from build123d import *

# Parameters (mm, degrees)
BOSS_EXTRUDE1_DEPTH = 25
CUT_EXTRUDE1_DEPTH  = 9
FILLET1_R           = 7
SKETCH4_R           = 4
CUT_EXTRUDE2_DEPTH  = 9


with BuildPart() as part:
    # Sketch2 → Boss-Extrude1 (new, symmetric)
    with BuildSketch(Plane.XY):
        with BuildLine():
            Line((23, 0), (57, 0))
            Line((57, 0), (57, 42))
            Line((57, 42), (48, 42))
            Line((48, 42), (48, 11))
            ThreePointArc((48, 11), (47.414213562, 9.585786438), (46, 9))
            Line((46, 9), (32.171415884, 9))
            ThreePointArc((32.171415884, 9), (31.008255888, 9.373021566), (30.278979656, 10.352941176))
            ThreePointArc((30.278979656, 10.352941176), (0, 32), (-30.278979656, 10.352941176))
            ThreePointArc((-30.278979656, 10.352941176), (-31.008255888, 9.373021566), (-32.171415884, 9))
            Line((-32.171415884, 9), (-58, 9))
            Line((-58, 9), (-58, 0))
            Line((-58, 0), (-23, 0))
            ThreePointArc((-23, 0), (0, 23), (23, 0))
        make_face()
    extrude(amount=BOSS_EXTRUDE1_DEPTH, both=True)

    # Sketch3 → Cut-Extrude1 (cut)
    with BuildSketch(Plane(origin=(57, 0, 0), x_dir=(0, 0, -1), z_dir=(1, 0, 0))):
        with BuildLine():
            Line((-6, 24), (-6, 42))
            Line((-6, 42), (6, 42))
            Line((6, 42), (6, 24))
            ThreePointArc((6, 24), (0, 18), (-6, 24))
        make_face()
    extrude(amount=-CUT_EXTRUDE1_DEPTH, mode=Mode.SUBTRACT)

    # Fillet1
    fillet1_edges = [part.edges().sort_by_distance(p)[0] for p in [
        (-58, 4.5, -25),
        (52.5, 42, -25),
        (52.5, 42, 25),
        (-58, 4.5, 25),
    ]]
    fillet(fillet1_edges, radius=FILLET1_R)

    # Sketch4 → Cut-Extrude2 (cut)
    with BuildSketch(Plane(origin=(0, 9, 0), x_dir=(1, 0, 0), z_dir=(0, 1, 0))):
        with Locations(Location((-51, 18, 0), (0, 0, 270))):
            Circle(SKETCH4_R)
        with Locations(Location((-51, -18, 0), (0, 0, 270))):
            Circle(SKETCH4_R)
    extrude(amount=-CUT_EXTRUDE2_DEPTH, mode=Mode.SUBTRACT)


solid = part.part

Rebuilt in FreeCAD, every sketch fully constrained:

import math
import FreeCAD as App
import Part
import Sketcher
Q = App.Units.Quantity


def edges_at(feature, points):
    """Names of the edges that pass closest to the given points."""
    edges = feature.Shape.Edges
    near = lambda p: min(range(len(edges)), key=lambda i: edges[i].distToShape(Part.Vertex(*p))[0])
    return sorted({f"Edge{near(p) + 1}" for p in points})

doc = App.newDocument("Part")
body = doc.addObject("PartDesign::Body", "Body")

sketch1 = body.newObject("Sketcher::SketchObject", "Sketch")
sketch1.AttachmentSupport = (doc.getObject("XY_Plane"), [""])
sketch1.MapMode = "FlatFace"
sketch1.addGeometry([
    Part.LineSegment(App.Vector(23, 0, 0), App.Vector(57, 0, 0)),
    Part.LineSegment(App.Vector(57, 0, 0), App.Vector(57, 42, 0)),
    Part.LineSegment(App.Vector(57, 42, 0), App.Vector(48, 42, 0)),
    Part.LineSegment(App.Vector(48, 42, 0), App.Vector(48, 11, 0)),
    Part.ArcOfCircle(Part.Circle(App.Vector(46, 11, 0), App.Vector(0, 0, 1), 2), math.radians(-90), math.radians(0)),
    Part.LineSegment(App.Vector(46, 9, 0), App.Vector(32.2, 9, 0)),
    Part.ArcOfCircle(Part.Circle(App.Vector(32.2, 11, 0), App.Vector(0, 0, 1), 2), math.radians(-161), math.radians(-90)),
    Part.ArcOfCircle(Part.Circle(App.Vector(0, 0, 0), App.Vector(0, 0, 1), 32), math.radians(19), math.radians(161)),
    Part.ArcOfCircle(Part.Circle(App.Vector(-32.2, 11, 0), App.Vector(0, 0, 1), 2), math.radians(-90), math.radians(-19)),
    Part.LineSegment(App.Vector(-32.2, 9, 0), App.Vector(-58, 9, 0)),
    Part.LineSegment(App.Vector(-58, 9, 0), App.Vector(-58, 0, 0)),
    Part.LineSegment(App.Vector(-58, 0, 0), App.Vector(-23, 0, 0)),
    Part.ArcOfCircle(Part.Circle(App.Vector(0, 0, 0), App.Vector(0, 0, 1), 23), math.radians(0), math.radians(180)),
], False)
sketch1.addConstraint([
    Sketcher.Constraint("Coincident", 0, 2, 1, 1),
    Sketcher.Constraint("Coincident", 1, 2, 2, 1),
    Sketcher.Constraint("Coincident", 2, 2, 3, 1),
    Sketcher.Constraint("Tangent", 3, 2, 4, 2),
    Sketcher.Constraint("Tangent", 4, 1, 5, 1),
    Sketcher.Constraint("Tangent", 5, 2, 6, 2),
    Sketcher.Constraint("Tangent", 6, 1, 7, 1),
    Sketcher.Constraint("Tangent", 7, 2, 8, 2),
    Sketcher.Constraint("Tangent", 8, 1, 9, 1),
    Sketcher.Constraint("Coincident", 9, 2, 10, 1),
    Sketcher.Constraint("Coincident", 10, 2, 11, 1),
    Sketcher.Constraint("Coincident", 11, 2, 12, 2),
    Sketcher.Constraint("Coincident", 12, 1, 0, 1),
    Sketcher.Constraint("Horizontal", 0),
    Sketcher.Constraint("Vertical", 1),
    Sketcher.Constraint("Horizontal", 2),
    Sketcher.Constraint("Vertical", 3),
    Sketcher.Constraint("Horizontal", 5),
    Sketcher.Constraint("Horizontal", 9),
    Sketcher.Constraint("Vertical", 10),
    Sketcher.Constraint("Horizontal", 11),
    Sketcher.Constraint("Coincident", 7, 3, -1, 1),
    Sketcher.Constraint("Coincident", 12, 3, -1, 1),
    Sketcher.Constraint("Equal", 4, 6),
    Sketcher.Constraint("Equal", 6, 8),
    Sketcher.Constraint("PointOnObject", 0, 2, -1),
    Sketcher.Constraint("PointOnObject", 10, 2, -1),
    Sketcher.Constraint("Horizontal", 6, 3, 8, 3),
    Sketcher.Constraint("Equal", 2, 10),
    Sketcher.Constraint("Radius", 4, Q("2 mm")),
    Sketcher.Constraint("Radius", 7, Q("32 mm")),
    Sketcher.Constraint("Radius", 12, Q("23 mm")),
    Sketcher.Constraint("DistanceX", 0, 1, 0, 2, Q("34 mm")),
    Sketcher.Constraint("DistanceX", 2, 2, 2, 1, Q("9 mm")),
    Sketcher.Constraint("DistanceX", 11, 1, 11, 2, Q("35 mm")),
    Sketcher.Constraint("DistanceY", 1, 1, 1, 2, Q("42 mm")),
])
pad1 = body.newObject("PartDesign::Pad", "Pad")
pad1.Profile = sketch1
pad1.Length = 50
pad1.Midplane = True

sketch2 = body.newObject("Sketcher::SketchObject", "Sketch001")
sketch2.AttachmentSupport = (doc.getObject("YZ_Plane"), [""])
sketch2.MapMode = "FlatFace"
sketch2.AttachmentOffset = App.Placement(App.Vector(0, 0, 57), App.Rotation())
sketch2.addGeometry([
    Part.LineSegment(App.Vector(42, 6, 0), App.Vector(24, 6, 0)),
    Part.ArcOfCircle(Part.Circle(App.Vector(24, 0, 0), App.Vector(0, 0, 1), 6), math.radians(90), math.radians(270)),
    Part.LineSegment(App.Vector(24, -6, 0), App.Vector(42, -6, 0)),
    Part.LineSegment(App.Vector(42, -6, 0), App.Vector(42, 6, 0)),
], False)
sketch2.addConstraint([
    Sketcher.Constraint("Tangent", 0, 2, 1, 1),
    Sketcher.Constraint("Tangent", 1, 2, 2, 1),
    Sketcher.Constraint("Coincident", 2, 2, 3, 1),
    Sketcher.Constraint("Coincident", 3, 2, 0, 1),
    Sketcher.Constraint("Horizontal", 0),
    Sketcher.Constraint("Horizontal", 2),
    Sketcher.Constraint("Vertical", 3),
    Sketcher.Constraint("PointOnObject", 1, 3, -1),
    Sketcher.Constraint("Radius", 1, Q("6 mm")),
    Sketcher.Constraint("DistanceX", 0, 2, 0, 1, Q("18 mm")),
    Sketcher.Constraint("DistanceX", -1, 1, 1, 3, Q("24 mm")),
])
pocket1 = body.newObject("PartDesign::Pocket", "Pocket")
pocket1.Profile = sketch2
pocket1.Length = 9
doc.recompute()

fillet = body.newObject("PartDesign::Fillet", "Fillet")
fillet.Base = (pocket1, edges_at(pocket1, [
    (-58, 4.5, -25),
    (52.5, 42, -25),
    (52.5, 42, 25),
    (-58, 4.5, 25),
]))
fillet.Radius = 7

sketch3 = body.newObject("Sketcher::SketchObject", "Sketch002")
sketch3.AttachmentSupport = (doc.getObject("XZ_Plane"), [""])
sketch3.MapMode = "FlatFace"
sketch3.AttachmentOffset = App.Placement(App.Vector(0, 0, -9), App.Rotation())
sketch3.addGeometry([
    Part.Circle(App.Vector(-51, -18, 0), App.Vector(0, 0, 1), 4),
    Part.Circle(App.Vector(-51, 18, 0), App.Vector(0, 0, 1), 4),
], False)
sketch3.addConstraint([
    Sketcher.Constraint("Equal", 0, 1),
    Sketcher.Constraint("Symmetric", 0, 3, 1, 3, -1),
    Sketcher.Constraint("Diameter", 0, Q("8 mm")),
    Sketcher.Constraint("DistanceX", 0, 3, -1, 1, Q("51 mm")),
    Sketcher.Constraint("DistanceY", 0, 3, -1, 1, Q("18 mm")),
])
pocket2 = body.newObject("PartDesign::Pocket", "Pocket001")
pocket2.Profile = sketch3
pocket2.Length = 9
pocket2.Reversed = True

doc.recompute()
